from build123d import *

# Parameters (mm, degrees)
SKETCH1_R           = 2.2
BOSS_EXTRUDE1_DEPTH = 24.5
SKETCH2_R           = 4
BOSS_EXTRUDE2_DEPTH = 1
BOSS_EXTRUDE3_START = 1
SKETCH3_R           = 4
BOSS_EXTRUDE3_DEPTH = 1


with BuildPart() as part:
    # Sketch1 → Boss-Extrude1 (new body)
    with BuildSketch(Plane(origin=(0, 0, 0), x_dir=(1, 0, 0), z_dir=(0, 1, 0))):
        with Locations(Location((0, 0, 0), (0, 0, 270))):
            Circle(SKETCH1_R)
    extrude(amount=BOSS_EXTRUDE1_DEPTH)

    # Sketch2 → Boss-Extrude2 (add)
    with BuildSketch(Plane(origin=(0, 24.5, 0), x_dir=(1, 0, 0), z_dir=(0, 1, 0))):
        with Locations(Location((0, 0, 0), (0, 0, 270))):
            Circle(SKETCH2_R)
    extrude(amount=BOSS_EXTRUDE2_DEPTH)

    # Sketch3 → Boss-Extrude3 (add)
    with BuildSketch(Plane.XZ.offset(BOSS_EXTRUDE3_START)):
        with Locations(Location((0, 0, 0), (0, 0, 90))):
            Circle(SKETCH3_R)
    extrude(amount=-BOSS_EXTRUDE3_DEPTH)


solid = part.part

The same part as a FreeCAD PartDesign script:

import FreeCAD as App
import Part
import Sketcher
from FreeCAD import Vector

doc = App.newDocument("Part")
params = doc.addObject("Spreadsheet::Sheet", "Params")
for row, (alias, value) in enumerate([
    ("sketch1_diameter", "4.4 mm"),
    ("pad1_length", "24.5 mm"),
    ("sketch2_diameter", "8 mm"),
    ("pad2_length", "1 mm"),
    ("sketch3_diameter", "8 mm"),
    ("pad3_length", "1 mm"),
], start=1):
    params.set(f"A{row}", alias)
    params.set(f"B{row}", "=" + value)
    params.setAlias(f"B{row}", alias)

body = doc.addObject("PartDesign::Body", "Body")

sketch1 = doc.addObject("Sketcher::SketchObject", "Sketch")
body.addObject(sketch1)
sketch1.AttachmentSupport = (doc.XZ_Plane, [""])
sketch1.MapMode = "FlatFace"
sketch1.addGeometry(Part.Circle(Vector(0, 0, 0), Vector(0, 0, 1), 2.2), False)
sketch1.addConstraint([
    Sketcher.Constraint("Coincident", 0, 3, -1, 1),
    Sketcher.Constraint("Diameter", 0, 4.4),
])
sketch1.setExpression("Constraints[1]", "Params.sketch1_diameter")
pad1 = doc.addObject("PartDesign::Pad", "Pad")
body.addObject(pad1)
pad1.Profile = sketch1
pad1.setExpression("Length", "Params.pad1_length")
pad1.Reversed = True

sketch2 = doc.addObject("Sketcher::SketchObject", "Sketch001")
body.addObject(sketch2)
sketch2.AttachmentSupport = (doc.XZ_Plane, [""])
sketch2.MapMode = "FlatFace"
sketch2.AttachmentOffset = App.Placement(Vector(0, 0, -24.5), App.Rotation())
sketch2.addGeometry(Part.Circle(Vector(0, 0, 0), Vector(0, 0, 1), 4), False)
sketch2.addConstraint([
    Sketcher.Constraint("Coincident", 0, 3, -1, 1),
    Sketcher.Constraint("Diameter", 0, 8.0),
])
sketch2.setExpression("Constraints[1]", "Params.sketch2_diameter")
pad2 = doc.addObject("PartDesign::Pad", "Pad001")
body.addObject(pad2)
pad2.Profile = sketch2
pad2.setExpression("Length", "Params.pad2_length")
pad2.Reversed = True

sketch3 = doc.addObject("Sketcher::SketchObject", "Sketch002")
body.addObject(sketch3)
sketch3.AttachmentSupport = (doc.XZ_Plane, [""])
sketch3.MapMode = "FlatFace"
sketch3.AttachmentOffset = App.Placement(Vector(0, 0, 1), App.Rotation())
sketch3.addGeometry(Part.Circle(Vector(0, 0, 0), Vector(0, 0, 1), 4), False)
sketch3.addConstraint([
    Sketcher.Constraint("Coincident", 0, 3, -1, 1),
    Sketcher.Constraint("Diameter", 0, 8.0),
])
sketch3.setExpression("Constraints[1]", "Params.sketch3_diameter")
pad3 = doc.addObject("PartDesign::Pad", "Pad002")
body.addObject(pad3)
pad3.Profile = sketch3
pad3.setExpression("Length", "Params.pad3_length")
pad3.Reversed = True

doc.recompute()
